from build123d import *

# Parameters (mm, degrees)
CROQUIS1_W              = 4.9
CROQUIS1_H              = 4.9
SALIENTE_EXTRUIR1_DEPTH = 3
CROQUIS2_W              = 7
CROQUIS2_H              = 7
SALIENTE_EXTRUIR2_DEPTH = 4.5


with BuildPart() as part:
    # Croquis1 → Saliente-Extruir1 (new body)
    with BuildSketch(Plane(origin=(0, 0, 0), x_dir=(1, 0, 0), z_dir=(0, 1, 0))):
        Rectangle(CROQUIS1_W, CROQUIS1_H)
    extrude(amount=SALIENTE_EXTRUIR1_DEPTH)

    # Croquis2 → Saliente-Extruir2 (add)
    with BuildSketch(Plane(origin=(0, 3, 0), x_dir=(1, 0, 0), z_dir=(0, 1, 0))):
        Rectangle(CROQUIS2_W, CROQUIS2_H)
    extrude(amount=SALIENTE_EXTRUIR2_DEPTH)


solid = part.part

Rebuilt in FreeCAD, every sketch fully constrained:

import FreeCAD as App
import Part
import Sketcher

doc = App.newDocument("Part")
body = doc.addObject("PartDesign::Body", "Body")

# Sketch on XZ plane
sketch1 = body.newObject("Sketcher::SketchObject", "Sketch")
sketch1.AttachmentSupport = (doc.getObject("XZ_Plane"), [""])
sketch1.MapMode = "FlatFace"
sketch1.addGeometry([
    Part.LineSegment(App.Vector(-2.5, -2.5, 0), App.Vector(-2.5, 2.5, 0)),
    Part.LineSegment(App.Vector(-2.5, 2.5, 0), App.Vector(2.5, 2.5, 0)),
    Part.LineSegment(App.Vector(2.5, 2.5, 0), App.Vector(2.5, -2.5, 0)),
    Part.LineSegment(App.Vector(2.5, -2.5, 0), App.Vector(-2.5, -2.5, 0)),
], False)
sketch1.addConstraint([
    Sketcher.Constraint("Coincident", 0, 2, 1, 1),
    Sketcher.Constraint("Coincident", 1, 2, 2, 1),
    Sketcher.Constraint("Coincident", 2, 2, 3, 1),
    Sketcher.Constraint("Coincident", 3, 2, 0, 1),
    Sketcher.Constraint("Vertical", 0),
    Sketcher.Constraint("Horizontal", 1),
    Sketcher.Constraint("Vertical", 2),
    Sketcher.Constraint("Horizontal", 3),
    Sketcher.Constraint("Symmetric", 0, 2, 2, 2, -1, 1),
    Sketcher.Constraint("Equal", 3, 0),
    Sketcher.Constraint("DistanceX", 1, 1, 1, 2, 4.9),
])
pad1 = body.newObject("PartDesign::Pad", "Pad")
pad1.Profile = sketch1
pad1.Length = 3
pad1.Reversed = True

# Sketch on XZ plane
sketch2 = body.newObject("Sketcher::SketchObject", "Sketch001")
sketch2.AttachmentSupport = (doc.getObject("XZ_Plane"), [""])
sketch2.MapMode = "FlatFace"
sketch2.AttachmentOffset = App.Placement(App.Vector(0, 0, -3), App.Rotation())
sketch2.addGeometry([
    Part.LineSegment(App.Vector(-4, -4, 0), App.Vector(-4, 4, 0)),
    Part.LineSegment(App.Vector(-4, 4, 0), App.Vector(4, 4, 0)),
    Part.LineSegment(App.Vector(4, 4, 0), App.Vector(4, -4, 0)),
    Part.LineSegment(App.Vector(4, -4, 0), App.Vector(-4, -4, 0)),
], False)
sketch2.addConstraint([
    Sketcher.Constraint("Coincident", 0, 2, 1, 1),
    Sketcher.Constraint("Coincident", 1, 2, 2, 1),
    Sketcher.Constraint("Coincident", 2, 2, 3, 1),
    Sketcher.Constraint("Coincident", 3, 2, 0, 1),
    Sketcher.Constraint("Vertical", 0),
    Sketcher.Constraint("Horizontal", 1),
    Sketcher.Constraint("Vertical", 2),
    Sketcher.Constraint("Horizontal", 3),
    Sketcher.Constraint("Symmetric", 0, 2, 2, 2, -1, 1),
    Sketcher.Constraint("Equal", 3, 0),
    Sketcher.Constraint("DistanceX", 1, 1, 1, 2, 7.0),
])
pad2 = body.newObject("PartDesign::Pad", "Pad001")
pad2.Profile = sketch2
pad2.Length = 4.5
pad2.Reversed = True

doc.recompute()
